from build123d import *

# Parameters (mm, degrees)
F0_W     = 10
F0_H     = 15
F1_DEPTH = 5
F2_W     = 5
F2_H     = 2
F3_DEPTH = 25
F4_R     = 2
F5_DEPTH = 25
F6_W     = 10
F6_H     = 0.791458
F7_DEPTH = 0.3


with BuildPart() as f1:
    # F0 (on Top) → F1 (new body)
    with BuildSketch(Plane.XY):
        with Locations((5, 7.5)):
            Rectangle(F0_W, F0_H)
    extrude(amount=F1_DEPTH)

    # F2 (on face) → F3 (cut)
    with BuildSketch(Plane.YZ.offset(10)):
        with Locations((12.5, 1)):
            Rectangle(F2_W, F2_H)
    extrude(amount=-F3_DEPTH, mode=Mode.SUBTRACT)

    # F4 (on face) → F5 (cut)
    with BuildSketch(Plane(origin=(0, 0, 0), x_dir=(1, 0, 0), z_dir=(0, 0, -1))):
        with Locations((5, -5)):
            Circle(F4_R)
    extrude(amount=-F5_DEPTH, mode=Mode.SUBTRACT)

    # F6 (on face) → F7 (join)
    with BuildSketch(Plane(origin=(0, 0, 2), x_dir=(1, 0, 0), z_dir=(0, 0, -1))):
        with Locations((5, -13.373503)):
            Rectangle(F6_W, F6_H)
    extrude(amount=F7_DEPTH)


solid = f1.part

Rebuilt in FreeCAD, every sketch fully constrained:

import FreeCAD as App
import Part
import Sketcher

V = App.Vector

doc = App.newDocument("Part")
body = doc.addObject("PartDesign::Body", "Body")

# Sketch on XY plane
sketch1 = doc.addObject("Sketcher::SketchObject", "Sketch")
body.addObject(sketch1)
sketch1.AttachmentSupport = (doc.XY_Plane, [""])
sketch1.MapMode = "FlatFace"
sketch1.addGeometry([
    Part.LineSegment(V(0, 15, 0), V(0, 0, 0)),
    Part.LineSegment(V(0, 0, 0), V(10, 0, 0)),
    Part.LineSegment(V(10, 0, 0), V(10, 15, 0)),
    Part.LineSegment(V(10, 15, 0), V(0, 15, 0)),
], False)
sketch1.addConstraint([
    Sketcher.Constraint("Coincident", 0, 2, 1, 1),
    Sketcher.Constraint("Coincident", 1, 2, 2, 1),
    Sketcher.Constraint("Coincident", 2, 2, 3, 1),
    Sketcher.Constraint("Coincident", 3, 2, 0, 1),
    Sketcher.Constraint("Vertical", 0),
    Sketcher.Constraint("Horizontal", 1),
    Sketcher.Constraint("Vertical", 2),
    Sketcher.Constraint("Horizontal", 3),
    Sketcher.Constraint("Coincident", 0, 2, -1, 1),
    Sketcher.Constraint("DistanceX", 1, 1, 1, 2, 10.0),
    Sketcher.Constraint("DistanceY", 0, 2, 0, 1, 15.0),
])
pad1 = doc.addObject("PartDesign::Pad", "Pad")
body.addObject(pad1)
pad1.Profile = sketch1
pad1.Length = 5

# Sketch on YZ plane
sketch2 = doc.addObject("Sketcher::SketchObject", "Sketch001")
body.addObject(sketch2)
sketch2.AttachmentSupport = (doc.YZ_Plane, [""])
sketch2.MapMode = "FlatFace"
sketch2.AttachmentOffset = App.Placement(V(0, 0, 10), App.Rotation())
sketch2.addGeometry([
    Part.LineSegment(V(10, 2, 0), V(10, 0, 0)),
    Part.LineSegment(V(10, 0, 0), V(15, 0, 0)),
    Part.LineSegment(V(15, 0, 0), V(15, 2, 0)),
    Part.LineSegment(V(15, 2, 0), V(10, 2, 0)),
], False)
sketch2.addConstraint([
    Sketcher.Constraint("Coincident", 0, 2, 1, 1),
    Sketcher.Constraint("Coincident", 1, 2, 2, 1),
    Sketcher.Constraint("Coincident", 2, 2, 3, 1),
    Sketcher.Constraint("Coincident", 3, 2, 0, 1),
    Sketcher.Constraint("Vertical", 0),
    Sketcher.Constraint("Horizontal", 1),
    Sketcher.Constraint("Vertical", 2),
    Sketcher.Constraint("Horizontal", 3),
    Sketcher.Constraint("PointOnObject", 0, 2, -1),
    Sketcher.Constraint("DistanceX", 1, 1, 1, 2, 5.0),
    Sketcher.Constraint("DistanceY", 0, 2, 0, 1, 2.0),
    Sketcher.Constraint("DistanceX", -1, 1, 0, 2, 10.0),
])
pocket1 = doc.addObject("PartDesign::Pocket", "Pocket")
body.addObject(pocket1)
pocket1.Profile = sketch2
pocket1.Length = 25

# Sketch on XY plane
sketch3 = doc.addObject("Sketcher::SketchObject", "Sketch002")
body.addObject(sketch3)
sketch3.AttachmentSupport = (doc.XY_Plane, [""])
sketch3.MapMode = "FlatFace"
sketch3.addGeometry(Part.Circle(V(5, 5, 0), V(0, 0, 1), 2), False)
sketch3.addConstraint([
    Sketcher.Constraint("Diameter", 0, 4.0),
    Sketcher.Constraint("DistanceX", -1, 1, 0, 3, 5.0),
    Sketcher.Constraint("DistanceY", -1, 1, 0, 3, 5.0),
])
pocket2 = doc.addObject("PartDesign::Pocket", "Pocket001")
body.addObject(pocket2)
pocket2.Profile = sketch3
pocket2.Length = 25
pocket2.Reversed = True

# Sketch on XY plane
sketch4 = doc.addObject("Sketcher::SketchObject", "Sketch003")
body.addObject(sketch4)
sketch4.AttachmentSupport = (doc.XY_Plane, [""])
sketch4.MapMode = "FlatFace"
sketch4.AttachmentOffset = App.Placement(V(0, 0, 2), App.Rotation())
sketch4.addGeometry([
    Part.LineSegment(V(0, 13, 0), V(0, 13.8, 0)),
    Part.LineSegment(V(0, 13.8, 0), V(10, 13.8, 0)),
    Part.LineSegment(V(10, 13.8, 0), V(10, 13, 0)),
    Part.LineSegment(V(10, 13, 0), V(0, 13, 0)),
], False)
sketch4.addConstraint([
    Sketcher.Constraint("Coincident", 0, 2, 1, 1),
    Sketcher.Constraint("Coincident", 1, 2, 2, 1),
    Sketcher.Constraint("Coincident", 2, 2, 3, 1),
    Sketcher.Constraint("Coincident", 3, 2, 0, 1),
    Sketcher.Constraint("Vertical", 0),
    Sketcher.Constraint("Horizontal", 1),
    Sketcher.Constraint("Vertical", 2),
    Sketcher.Constraint("Horizontal", 3),
    Sketcher.Constraint("PointOnObject", 0, 2, -2),
    Sketcher.Constraint("DistanceX", 1, 1, 1, 2, 10.0),
    Sketcher.Constraint("DistanceY", 0, 1, 0, 2, 0.791458),
    Sketcher.Constraint("DistanceY", -1, 1, 0, 2, 13.769232),
])
pad2 = doc.addObject("PartDesign::Pad", "Pad001")
body.addObject(pad2)
pad2.Profile = sketch4
pad2.Length = 0.3
pad2.Reversed = True

doc.recompute()
